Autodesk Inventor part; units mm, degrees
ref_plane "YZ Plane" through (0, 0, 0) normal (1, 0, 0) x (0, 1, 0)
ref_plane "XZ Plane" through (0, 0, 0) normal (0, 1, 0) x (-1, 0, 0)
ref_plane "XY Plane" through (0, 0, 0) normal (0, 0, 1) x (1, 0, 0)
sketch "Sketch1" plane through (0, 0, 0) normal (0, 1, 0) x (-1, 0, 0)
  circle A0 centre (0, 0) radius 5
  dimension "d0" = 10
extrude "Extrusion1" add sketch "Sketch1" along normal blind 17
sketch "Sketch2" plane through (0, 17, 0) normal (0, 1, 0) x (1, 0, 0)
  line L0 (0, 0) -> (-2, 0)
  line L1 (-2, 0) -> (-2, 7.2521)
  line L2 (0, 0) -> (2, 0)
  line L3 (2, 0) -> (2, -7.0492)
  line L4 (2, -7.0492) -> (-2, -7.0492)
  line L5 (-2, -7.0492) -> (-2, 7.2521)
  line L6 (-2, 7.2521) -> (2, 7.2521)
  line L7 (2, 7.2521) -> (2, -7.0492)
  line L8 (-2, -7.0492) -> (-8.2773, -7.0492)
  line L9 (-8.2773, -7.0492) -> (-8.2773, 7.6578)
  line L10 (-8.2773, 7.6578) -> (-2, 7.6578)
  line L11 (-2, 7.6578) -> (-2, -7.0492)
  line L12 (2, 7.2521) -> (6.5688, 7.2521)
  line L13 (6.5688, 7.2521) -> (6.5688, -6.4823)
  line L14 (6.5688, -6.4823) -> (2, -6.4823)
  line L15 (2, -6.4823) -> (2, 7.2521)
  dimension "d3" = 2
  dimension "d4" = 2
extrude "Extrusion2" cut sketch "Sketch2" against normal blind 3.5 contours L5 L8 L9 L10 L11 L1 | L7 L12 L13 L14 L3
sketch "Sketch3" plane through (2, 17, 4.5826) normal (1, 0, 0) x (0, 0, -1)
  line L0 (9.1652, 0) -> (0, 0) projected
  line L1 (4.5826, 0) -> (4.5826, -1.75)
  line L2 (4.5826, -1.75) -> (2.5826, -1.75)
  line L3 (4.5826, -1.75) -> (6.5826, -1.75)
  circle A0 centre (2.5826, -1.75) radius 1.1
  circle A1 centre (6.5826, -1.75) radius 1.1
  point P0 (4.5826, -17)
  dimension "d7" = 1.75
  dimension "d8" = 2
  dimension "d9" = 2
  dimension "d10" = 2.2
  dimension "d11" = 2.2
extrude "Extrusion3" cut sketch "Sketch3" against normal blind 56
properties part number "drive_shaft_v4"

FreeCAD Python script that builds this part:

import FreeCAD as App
import Part
import Sketcher

doc = App.newDocument("Part")
body = doc.addObject("PartDesign::Body", "Body")

# Sketch on XZ plane
sketch1 = doc.addObject("Sketcher::SketchObject", "Sketch")
body.addObject(sketch1)
sketch1.AttachmentSupport = (doc.XZ_Plane, [""])
sketch1.MapMode = "FlatFace"
sketch1.addGeometry(Part.Circle(App.Vector(0, 0, 0), App.Vector(0, 0, 1), 5), False)
sketch1.addConstraint(Sketcher.Constraint("Coincident", 0, 3, -1, 1))
sketch1.addConstraint(Sketcher.Constraint("Diameter", 0, 10.0))
pad1 = doc.addObject("PartDesign::Pad", "Pad")
body.addObject(pad1)
pad1.Profile = sketch1
pad1.Length = 17
pad1.Reversed = True

# Sketch on XZ plane
sketch2 = doc.addObject("Sketcher::SketchObject", "Sketch001")
body.addObject(sketch2)
sketch2.AttachmentSupport = (doc.XZ_Plane, [""])
sketch2.MapMode = "FlatFace"
sketch2.AttachmentOffset = App.Placement(App.Vector(0, 0, -17), App.Rotation())
sketch2.addGeometry(Part.LineSegment(App.Vector(-2, 7.0492, 0), App.Vector(-2, -7.6578, 0)), False)
sketch2.addGeometry(Part.LineSegment(App.Vector(-2, -7.6578, 0), App.Vector(-8.2773, -7.6578, 0)), False)
sketch2.addGeometry(Part.LineSegment(App.Vector(-8.2773, -7.6578, 0), App.Vector(-8.2773, 7.0492, 0)), False)
sketch2.addGeometry(Part.LineSegment(App.Vector(-8.2773, 7.0492, 0), App.Vector(-2, 7.0492, 0)), False)
sketch2.addGeometry(Part.LineSegment(App.Vector(2, -7.2521, 0), App.Vector(2, 6.4823, 0)), False)
sketch2.addGeometry(Part.LineSegment(App.Vector(2, 6.4823, 0), App.Vector(6.5688, 6.4823, 0)), False)
sketch2.addGeometry(Part.LineSegment(App.Vector(6.5688, 6.4823, 0), App.Vector(6.5688, -7.2521, 0)), False)
sketch2.addGeometry(Part.LineSegment(App.Vector(6.5688, -7.2521, 0), App.Vector(2, -7.2521, 0)), False)
sketch2.addConstraint(Sketcher.Constraint("Coincident", 0, 2, 1, 1))
sketch2.addConstraint(Sketcher.Constraint("Coincident", 1, 2, 2, 1))
sketch2.addConstraint(Sketcher.Constraint("Coincident", 2, 2, 3, 1))
sketch2.addConstraint(Sketcher.Constraint("Coincident", 3, 2, 0, 1))
sketch2.addConstraint(Sketcher.Constraint("Coincident", 4, 2, 5, 1))
sketch2.addConstraint(Sketcher.Constraint("Coincident", 5, 2, 6, 1))
sketch2.addConstraint(Sketcher.Constraint("Coincident", 6, 2, 7, 1))
sketch2.addConstraint(Sketcher.Constraint("Coincident", 7, 2, 4, 1))
sketch2.addConstraint(Sketcher.Constraint("Vertical", 0))
sketch2.addConstraint(Sketcher.Constraint("Horizontal", 1))
sketch2.addConstraint(Sketcher.Constraint("Vertical", 2))
sketch2.addConstraint(Sketcher.Constraint("Horizontal", 3))
sketch2.addConstraint(Sketcher.Constraint("Vertical", 4))
sketch2.addConstraint(Sketcher.Constraint("Horizontal", 5))
sketch2.addConstraint(Sketcher.Constraint("Vertical", 6))
sketch2.addConstraint(Sketcher.Constraint("Horizontal", 7))
sketch2.addConstraint(Sketcher.Constraint("DistanceX", 0, 2, -1, 1, 2.0))
sketch2.addConstraint(Sketcher.Constraint("DistanceX", -1, 1, 4, 2, 2.0))
sketch2.addConstraint(Sketcher.Constraint("DistanceY", 0, 2, 0, 1, 14.707))
sketch2.addConstraint(Sketcher.Constraint("DistanceY", 0, 2, 4, 2, 14.14))
sketch2.addConstraint(Sketcher.Constraint("DistanceX", 1, 2, 1, 1, 6.2773))
sketch2.addConstraint(Sketcher.Constraint("DistanceX", 5, 1, 5, 2, 4.5688))
sketch2.addConstraint(Sketcher.Constraint("DistanceY", 4, 1, 4, 2, 13.7344))
sketch2.addConstraint(Sketcher.Constraint("DistanceY", 6, 2, -1, 1, 7.252))
pocket1 = doc.addObject("PartDesign::Pocket", "Pocket")
body.addObject(pocket1)
pocket1.Profile = sketch2
pocket1.Length = 3.5
pocket1.Reversed = True

# Sketch on YZ plane
sketch3 = doc.addObject("Sketcher::SketchObject", "Sketch002")
body.addObject(sketch3)
sketch3.AttachmentSupport = (doc.YZ_Plane, [""])
sketch3.MapMode = "FlatFace"
sketch3.AttachmentOffset = App.Placement(App.Vector(0, 0, 2), App.Rotation())
sketch3.addGeometry(Part.Circle(App.Vector(15.25, 2, 0), App.Vector(0, 0, 1), 1.1), False)
sketch3.addGeometry(Part.Circle(App.Vector(15.25, -2, 0), App.Vector(0, 0, 1), 1.1), False)
sketch3.addConstraint(Sketcher.Constraint("Equal", 0, 1))
sketch3.addConstraint(Sketcher.Constraint("Symmetric", 0, 3, 1, 3, -1))
sketch3.addConstraint(Sketcher.Constraint("Diameter", 0, 2.2))
sketch3.addConstraint(Sketcher.Constraint("DistanceY", -1, 1, 0, 3, 2.0))
sketch3.addConstraint(Sketcher.Constraint("DistanceX", -1, 1, 0, 3, 15.25))
pocket2 = doc.addObject("PartDesign::Pocket", "Pocket001")
body.addObject(pocket2)
pocket2.Profile = sketch3
pocket2.Length = 56

doc.recompute()
